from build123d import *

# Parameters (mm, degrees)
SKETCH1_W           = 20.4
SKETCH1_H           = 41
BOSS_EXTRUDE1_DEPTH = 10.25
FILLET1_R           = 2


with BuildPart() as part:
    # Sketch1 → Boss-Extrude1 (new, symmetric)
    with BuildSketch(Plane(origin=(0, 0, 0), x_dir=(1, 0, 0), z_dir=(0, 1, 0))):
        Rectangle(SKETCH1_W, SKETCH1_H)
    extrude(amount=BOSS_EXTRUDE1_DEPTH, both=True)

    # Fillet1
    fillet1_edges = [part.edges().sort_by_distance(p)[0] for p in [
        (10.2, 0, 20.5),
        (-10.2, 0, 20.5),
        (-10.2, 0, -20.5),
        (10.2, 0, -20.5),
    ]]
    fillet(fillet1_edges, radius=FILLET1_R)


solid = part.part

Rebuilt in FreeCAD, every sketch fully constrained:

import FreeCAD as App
import Part
import Sketcher

V = App.Vector


def edges_at(feature, points):
    """Names of the edges that pass closest to the given points."""
    edges = feature.Shape.Edges
    near = lambda p: min(range(len(edges)), key=lambda i: edges[i].distToShape(Part.Vertex(*p))[0])
    return sorted({f"Edge{near(p) + 1}" for p in points})

doc = App.newDocument("Part")
body = doc.addObject("PartDesign::Body", "Body")

# Sketch on XZ plane
sketch1 = body.newObject("Sketcher::SketchObject", "Sketch")
sketch1.AttachmentSupport = (doc.getObject("XZ_Plane"), [""])
sketch1.MapMode = "FlatFace"
sketch1.addGeometry(Part.LineSegment(V(-10, -20, 0), V(-10, 20, 0)), False)
sketch1.addGeometry(Part.LineSegment(V(-10, 20, 0), V(10, 20, 0)), False)
sketch1.addGeometry(Part.LineSegment(V(10, 20, 0), V(10, -20, 0)), False)
sketch1.addGeometry(Part.LineSegment(V(10, -20, 0), V(-10, -20, 0)), False)
sketch1.addConstraint(Sketcher.Constraint("Coincident", 0, 2, 1, 1))
sketch1.addConstraint(Sketcher.Constraint("Coincident", 1, 2, 2, 1))
sketch1.addConstraint(Sketcher.Constraint("Coincident", 2, 2, 3, 1))
sketch1.addConstraint(Sketcher.Constraint("Coincident", 3, 2, 0, 1))
sketch1.addConstraint(Sketcher.Constraint("Vertical", 0))
sketch1.addConstraint(Sketcher.Constraint("Horizontal", 1))
sketch1.addConstraint(Sketcher.Constraint("Vertical", 2))
sketch1.addConstraint(Sketcher.Constraint("Horizontal", 3))
sketch1.addConstraint(Sketcher.Constraint("Symmetric", 0, 2, 2, 2, -1, 1))
sketch1.addConstraint(Sketcher.Constraint("DistanceY", 0, 1, 0, 2, 41.0))
sketch1.addConstraint(Sketcher.Constraint("DistanceX", 1, 1, 1, 2, 20.4))
pad1 = body.newObject("PartDesign::Pad", "Pad")
pad1.Profile = sketch1
pad1.Length = 20.5
pad1.Midplane = True
doc.recompute()

fillet = body.newObject("PartDesign::Fillet", "Fillet")
fillet.Base = (pad1, edges_at(pad1, [
    (10.2, 0, 20.5),
    (-10.2, 0, 20.5),
    (-10.2, 0, -20.5),
    (10.2, 0, -20.5),
]))
fillet.Radius = 2

doc.recompute()
